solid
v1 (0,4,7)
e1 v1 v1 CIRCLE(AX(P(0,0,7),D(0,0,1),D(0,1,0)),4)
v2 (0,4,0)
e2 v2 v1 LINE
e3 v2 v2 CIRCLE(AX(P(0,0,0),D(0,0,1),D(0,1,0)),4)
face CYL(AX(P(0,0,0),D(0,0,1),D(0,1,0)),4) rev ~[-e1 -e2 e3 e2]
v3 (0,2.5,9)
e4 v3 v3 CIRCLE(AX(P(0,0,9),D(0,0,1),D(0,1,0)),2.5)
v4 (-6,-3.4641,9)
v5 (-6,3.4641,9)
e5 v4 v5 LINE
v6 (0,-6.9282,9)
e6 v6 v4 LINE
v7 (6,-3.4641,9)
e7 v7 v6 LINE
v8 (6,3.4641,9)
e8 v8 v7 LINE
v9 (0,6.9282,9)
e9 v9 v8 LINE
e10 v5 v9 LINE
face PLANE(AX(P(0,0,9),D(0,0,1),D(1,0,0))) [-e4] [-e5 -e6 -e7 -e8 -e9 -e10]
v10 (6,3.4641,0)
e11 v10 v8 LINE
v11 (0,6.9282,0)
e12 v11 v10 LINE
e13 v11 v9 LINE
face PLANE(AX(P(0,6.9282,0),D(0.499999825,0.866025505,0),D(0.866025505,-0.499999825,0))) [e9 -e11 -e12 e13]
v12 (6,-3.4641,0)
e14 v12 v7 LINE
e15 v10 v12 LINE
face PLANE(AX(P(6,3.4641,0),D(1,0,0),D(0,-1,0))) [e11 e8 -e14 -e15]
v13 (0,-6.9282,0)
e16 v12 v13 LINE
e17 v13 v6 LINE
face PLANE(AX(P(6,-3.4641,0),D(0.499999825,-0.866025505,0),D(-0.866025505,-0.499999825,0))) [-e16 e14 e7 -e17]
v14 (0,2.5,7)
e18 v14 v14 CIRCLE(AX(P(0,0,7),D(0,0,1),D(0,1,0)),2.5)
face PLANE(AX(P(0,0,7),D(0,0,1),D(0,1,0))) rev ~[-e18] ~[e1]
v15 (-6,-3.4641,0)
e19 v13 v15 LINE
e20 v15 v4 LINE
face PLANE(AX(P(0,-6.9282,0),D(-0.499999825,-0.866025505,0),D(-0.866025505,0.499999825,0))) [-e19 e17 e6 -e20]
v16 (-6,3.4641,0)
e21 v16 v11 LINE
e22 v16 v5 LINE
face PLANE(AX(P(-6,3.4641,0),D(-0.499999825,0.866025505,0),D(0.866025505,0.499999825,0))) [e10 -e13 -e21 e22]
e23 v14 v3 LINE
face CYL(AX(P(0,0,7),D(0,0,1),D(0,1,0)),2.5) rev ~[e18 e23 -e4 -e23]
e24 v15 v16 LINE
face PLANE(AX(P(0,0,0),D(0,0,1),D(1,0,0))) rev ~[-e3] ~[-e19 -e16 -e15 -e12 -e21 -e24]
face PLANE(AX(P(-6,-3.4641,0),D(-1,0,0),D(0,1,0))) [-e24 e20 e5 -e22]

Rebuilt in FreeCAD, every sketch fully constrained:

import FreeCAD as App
import Part
import Sketcher
from FreeCAD import Vector
Q = App.Units.Quantity


def add_polygon(sketch, points):
    """Adds a closed chain of lines whose ends are joined by coincident constraints."""
    first, n = sketch.GeometryCount, len(points)
    for a, b in zip(points, points[1:] + points[:1]):
        sketch.addGeometry(Part.LineSegment(App.Vector(*a, 0), App.Vector(*b, 0)), False)
    for i in range(n):
        sketch.addConstraint(Sketcher.Constraint("Coincident", first + i, 2, first + (i + 1) % n, 1))

doc = App.newDocument("Part")
body = doc.addObject("PartDesign::Body", "Body")

sketch1 = body.newObject("Sketcher::SketchObject", "Sketch")
sketch1.AttachmentSupport = (doc.getObject("XY_Plane"), [""])
sketch1.MapMode = "FlatFace"
add_polygon(sketch1, [(-6, -3), (0, -7), (6, -3), (6, 3), (0, 7), (-6, 3)])
sketch1.addConstraint([
    Sketcher.Constraint("Vertical", 2),
    Sketcher.Constraint("Vertical", 5),
    Sketcher.Constraint("Symmetric", 0, 2, 3, 2, -1, 1),
    Sketcher.Constraint("Symmetric", 1, 2, 4, 2, -1, 1),
    Sketcher.Constraint("PointOnObject", 0, 2, -2),
    Sketcher.Constraint("Parallel", 0, 3),
    Sketcher.Constraint("Horizontal", 2, 2, 4, 2),
    Sketcher.Constraint("DistanceX", 4, 2, 2, 2, 12.0),
    Sketcher.Constraint("Angle", 0, Q("-30 deg")),
    Sketcher.Constraint("DistanceY", 2, 1, 2, 2, 6.9282),
])
pad1 = body.newObject("PartDesign::Pad", "Pad")
pad1.Profile = sketch1
pad1.Length = 9

sketch2 = body.newObject("Sketcher::SketchObject", "Sketch001")
sketch2.AttachmentSupport = (doc.getObject("XY_Plane"), [""])
sketch2.MapMode = "FlatFace"
sketch2.addGeometry(Part.Circle(Vector(0, 0, 0), Vector(0, 0, 1), 2.5), False)
sketch2.addConstraint([
    Sketcher.Constraint("Coincident", 0, 3, -1, 1),
    Sketcher.Constraint("Diameter", 0, 5.0),
])
doc.recompute()
hole = body.newObject("PartDesign::Hole", "Hole")
hole.Profile = sketch2
hole.ThreadType = "None"
hole.Diameter = 5
hole.DepthType = "ThroughAll"
hole.HoleCutType = "Counterbore"
hole.HoleCutDiameter = 8
hole.HoleCutDepth = 7
hole.Reversed = True

doc.recompute()
